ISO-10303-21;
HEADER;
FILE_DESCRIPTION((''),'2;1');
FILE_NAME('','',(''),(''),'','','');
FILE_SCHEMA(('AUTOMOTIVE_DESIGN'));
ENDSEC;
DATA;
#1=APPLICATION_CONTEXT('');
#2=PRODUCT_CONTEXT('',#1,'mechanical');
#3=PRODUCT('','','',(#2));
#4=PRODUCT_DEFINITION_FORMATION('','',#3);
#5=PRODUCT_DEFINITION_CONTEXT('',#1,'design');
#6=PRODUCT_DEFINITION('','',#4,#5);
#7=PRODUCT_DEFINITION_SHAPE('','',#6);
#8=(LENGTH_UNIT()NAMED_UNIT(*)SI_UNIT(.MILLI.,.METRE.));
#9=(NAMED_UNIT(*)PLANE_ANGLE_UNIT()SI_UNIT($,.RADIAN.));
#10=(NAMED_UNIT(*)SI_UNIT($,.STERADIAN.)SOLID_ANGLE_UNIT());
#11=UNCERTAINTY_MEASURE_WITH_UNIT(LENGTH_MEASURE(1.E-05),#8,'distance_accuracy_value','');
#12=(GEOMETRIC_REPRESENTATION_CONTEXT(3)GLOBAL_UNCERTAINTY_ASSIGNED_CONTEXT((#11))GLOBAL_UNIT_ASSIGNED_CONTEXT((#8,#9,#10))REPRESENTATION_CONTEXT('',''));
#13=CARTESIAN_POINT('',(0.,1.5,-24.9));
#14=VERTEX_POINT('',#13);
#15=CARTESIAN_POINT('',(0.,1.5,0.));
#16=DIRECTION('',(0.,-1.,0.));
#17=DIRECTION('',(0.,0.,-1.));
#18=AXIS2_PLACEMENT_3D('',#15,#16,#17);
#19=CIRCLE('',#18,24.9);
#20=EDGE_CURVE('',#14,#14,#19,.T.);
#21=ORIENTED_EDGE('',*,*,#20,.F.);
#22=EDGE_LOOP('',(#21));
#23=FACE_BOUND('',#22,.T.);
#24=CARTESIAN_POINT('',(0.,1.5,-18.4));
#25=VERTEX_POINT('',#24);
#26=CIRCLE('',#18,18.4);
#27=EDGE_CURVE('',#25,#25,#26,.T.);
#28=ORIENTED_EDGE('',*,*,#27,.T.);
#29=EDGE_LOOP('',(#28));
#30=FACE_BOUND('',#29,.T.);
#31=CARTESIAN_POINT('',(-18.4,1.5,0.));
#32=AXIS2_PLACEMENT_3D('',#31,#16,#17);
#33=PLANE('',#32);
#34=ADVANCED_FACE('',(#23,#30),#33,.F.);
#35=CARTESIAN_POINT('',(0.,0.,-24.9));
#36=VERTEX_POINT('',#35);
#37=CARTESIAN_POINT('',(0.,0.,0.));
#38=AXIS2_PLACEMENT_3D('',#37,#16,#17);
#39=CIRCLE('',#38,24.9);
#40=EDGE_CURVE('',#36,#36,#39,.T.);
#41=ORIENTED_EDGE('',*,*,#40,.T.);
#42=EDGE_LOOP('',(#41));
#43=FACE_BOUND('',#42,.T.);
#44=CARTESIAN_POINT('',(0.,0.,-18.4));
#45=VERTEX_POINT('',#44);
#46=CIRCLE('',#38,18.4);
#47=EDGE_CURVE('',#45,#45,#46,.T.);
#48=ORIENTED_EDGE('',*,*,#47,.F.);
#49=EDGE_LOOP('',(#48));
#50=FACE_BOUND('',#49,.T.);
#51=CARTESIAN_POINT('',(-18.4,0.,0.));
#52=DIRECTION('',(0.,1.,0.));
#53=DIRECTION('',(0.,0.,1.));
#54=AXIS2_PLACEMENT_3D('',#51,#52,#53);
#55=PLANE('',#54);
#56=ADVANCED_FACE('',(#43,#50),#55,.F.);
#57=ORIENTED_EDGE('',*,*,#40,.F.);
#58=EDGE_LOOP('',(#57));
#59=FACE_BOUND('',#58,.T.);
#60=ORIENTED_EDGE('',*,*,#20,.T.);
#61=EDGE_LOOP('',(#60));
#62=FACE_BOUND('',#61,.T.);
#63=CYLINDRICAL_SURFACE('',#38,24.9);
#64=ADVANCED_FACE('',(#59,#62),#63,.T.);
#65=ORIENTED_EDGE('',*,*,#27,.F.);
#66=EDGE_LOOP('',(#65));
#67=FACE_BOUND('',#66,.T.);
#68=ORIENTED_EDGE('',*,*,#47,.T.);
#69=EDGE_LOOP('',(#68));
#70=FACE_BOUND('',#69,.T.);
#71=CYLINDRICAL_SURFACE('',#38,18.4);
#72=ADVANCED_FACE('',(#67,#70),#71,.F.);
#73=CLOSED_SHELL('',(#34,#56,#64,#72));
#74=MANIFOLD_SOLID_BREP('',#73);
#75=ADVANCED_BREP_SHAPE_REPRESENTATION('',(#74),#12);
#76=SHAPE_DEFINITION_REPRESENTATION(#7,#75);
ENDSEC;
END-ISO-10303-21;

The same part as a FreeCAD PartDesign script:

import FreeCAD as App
import Part
import Sketcher
from FreeCAD import Vector


def add_polygon(sketch, points):
    """Adds a closed chain of lines whose ends are joined by coincident constraints."""
    first, n = sketch.GeometryCount, len(points)
    for a, b in zip(points, points[1:] + points[:1]):
        sketch.addGeometry(Part.LineSegment(App.Vector(*a, 0), App.Vector(*b, 0)), False)
    for i in range(n):
        sketch.addConstraint(Sketcher.Constraint("Coincident", first + i, 2, first + (i + 1) % n, 1))

doc = App.newDocument("Part")
body = doc.addObject("PartDesign::Body", "Body")

# Sketch on XY plane
sketch1 = body.newObject("Sketcher::SketchObject", "Sketch")
sketch1.AttachmentSupport = (doc.getObject("XY_Plane"), [""])
sketch1.MapMode = "FlatFace"
add_polygon(sketch1, [(-24.9, 1.5), (-24.9, 0), (-18.4, 0), (-18.4, 1.5)])  # lines 0-3
sketch1.addConstraint([
    Sketcher.Constraint("Vertical", 0),
    Sketcher.Constraint("Horizontal", 1),
    Sketcher.Constraint("Vertical", 2),
    Sketcher.Constraint("Horizontal", 3),
    Sketcher.Constraint("PointOnObject", 0, 2, -1),
    Sketcher.Constraint("DistanceX", 1, 1, 1, 2, 6.5),
    Sketcher.Constraint("DistanceY", 0, 2, 0, 1, 1.5),
    Sketcher.Constraint("DistanceX", 0, 2, -1, 1, 24.9),
])
revolution = body.newObject("PartDesign::Revolution", "Revolution")
revolution.Profile = sketch1
revolution.ReferenceAxis = (sketch1, ["V_Axis"])
revolution.Angle = 360

doc.recompute()
